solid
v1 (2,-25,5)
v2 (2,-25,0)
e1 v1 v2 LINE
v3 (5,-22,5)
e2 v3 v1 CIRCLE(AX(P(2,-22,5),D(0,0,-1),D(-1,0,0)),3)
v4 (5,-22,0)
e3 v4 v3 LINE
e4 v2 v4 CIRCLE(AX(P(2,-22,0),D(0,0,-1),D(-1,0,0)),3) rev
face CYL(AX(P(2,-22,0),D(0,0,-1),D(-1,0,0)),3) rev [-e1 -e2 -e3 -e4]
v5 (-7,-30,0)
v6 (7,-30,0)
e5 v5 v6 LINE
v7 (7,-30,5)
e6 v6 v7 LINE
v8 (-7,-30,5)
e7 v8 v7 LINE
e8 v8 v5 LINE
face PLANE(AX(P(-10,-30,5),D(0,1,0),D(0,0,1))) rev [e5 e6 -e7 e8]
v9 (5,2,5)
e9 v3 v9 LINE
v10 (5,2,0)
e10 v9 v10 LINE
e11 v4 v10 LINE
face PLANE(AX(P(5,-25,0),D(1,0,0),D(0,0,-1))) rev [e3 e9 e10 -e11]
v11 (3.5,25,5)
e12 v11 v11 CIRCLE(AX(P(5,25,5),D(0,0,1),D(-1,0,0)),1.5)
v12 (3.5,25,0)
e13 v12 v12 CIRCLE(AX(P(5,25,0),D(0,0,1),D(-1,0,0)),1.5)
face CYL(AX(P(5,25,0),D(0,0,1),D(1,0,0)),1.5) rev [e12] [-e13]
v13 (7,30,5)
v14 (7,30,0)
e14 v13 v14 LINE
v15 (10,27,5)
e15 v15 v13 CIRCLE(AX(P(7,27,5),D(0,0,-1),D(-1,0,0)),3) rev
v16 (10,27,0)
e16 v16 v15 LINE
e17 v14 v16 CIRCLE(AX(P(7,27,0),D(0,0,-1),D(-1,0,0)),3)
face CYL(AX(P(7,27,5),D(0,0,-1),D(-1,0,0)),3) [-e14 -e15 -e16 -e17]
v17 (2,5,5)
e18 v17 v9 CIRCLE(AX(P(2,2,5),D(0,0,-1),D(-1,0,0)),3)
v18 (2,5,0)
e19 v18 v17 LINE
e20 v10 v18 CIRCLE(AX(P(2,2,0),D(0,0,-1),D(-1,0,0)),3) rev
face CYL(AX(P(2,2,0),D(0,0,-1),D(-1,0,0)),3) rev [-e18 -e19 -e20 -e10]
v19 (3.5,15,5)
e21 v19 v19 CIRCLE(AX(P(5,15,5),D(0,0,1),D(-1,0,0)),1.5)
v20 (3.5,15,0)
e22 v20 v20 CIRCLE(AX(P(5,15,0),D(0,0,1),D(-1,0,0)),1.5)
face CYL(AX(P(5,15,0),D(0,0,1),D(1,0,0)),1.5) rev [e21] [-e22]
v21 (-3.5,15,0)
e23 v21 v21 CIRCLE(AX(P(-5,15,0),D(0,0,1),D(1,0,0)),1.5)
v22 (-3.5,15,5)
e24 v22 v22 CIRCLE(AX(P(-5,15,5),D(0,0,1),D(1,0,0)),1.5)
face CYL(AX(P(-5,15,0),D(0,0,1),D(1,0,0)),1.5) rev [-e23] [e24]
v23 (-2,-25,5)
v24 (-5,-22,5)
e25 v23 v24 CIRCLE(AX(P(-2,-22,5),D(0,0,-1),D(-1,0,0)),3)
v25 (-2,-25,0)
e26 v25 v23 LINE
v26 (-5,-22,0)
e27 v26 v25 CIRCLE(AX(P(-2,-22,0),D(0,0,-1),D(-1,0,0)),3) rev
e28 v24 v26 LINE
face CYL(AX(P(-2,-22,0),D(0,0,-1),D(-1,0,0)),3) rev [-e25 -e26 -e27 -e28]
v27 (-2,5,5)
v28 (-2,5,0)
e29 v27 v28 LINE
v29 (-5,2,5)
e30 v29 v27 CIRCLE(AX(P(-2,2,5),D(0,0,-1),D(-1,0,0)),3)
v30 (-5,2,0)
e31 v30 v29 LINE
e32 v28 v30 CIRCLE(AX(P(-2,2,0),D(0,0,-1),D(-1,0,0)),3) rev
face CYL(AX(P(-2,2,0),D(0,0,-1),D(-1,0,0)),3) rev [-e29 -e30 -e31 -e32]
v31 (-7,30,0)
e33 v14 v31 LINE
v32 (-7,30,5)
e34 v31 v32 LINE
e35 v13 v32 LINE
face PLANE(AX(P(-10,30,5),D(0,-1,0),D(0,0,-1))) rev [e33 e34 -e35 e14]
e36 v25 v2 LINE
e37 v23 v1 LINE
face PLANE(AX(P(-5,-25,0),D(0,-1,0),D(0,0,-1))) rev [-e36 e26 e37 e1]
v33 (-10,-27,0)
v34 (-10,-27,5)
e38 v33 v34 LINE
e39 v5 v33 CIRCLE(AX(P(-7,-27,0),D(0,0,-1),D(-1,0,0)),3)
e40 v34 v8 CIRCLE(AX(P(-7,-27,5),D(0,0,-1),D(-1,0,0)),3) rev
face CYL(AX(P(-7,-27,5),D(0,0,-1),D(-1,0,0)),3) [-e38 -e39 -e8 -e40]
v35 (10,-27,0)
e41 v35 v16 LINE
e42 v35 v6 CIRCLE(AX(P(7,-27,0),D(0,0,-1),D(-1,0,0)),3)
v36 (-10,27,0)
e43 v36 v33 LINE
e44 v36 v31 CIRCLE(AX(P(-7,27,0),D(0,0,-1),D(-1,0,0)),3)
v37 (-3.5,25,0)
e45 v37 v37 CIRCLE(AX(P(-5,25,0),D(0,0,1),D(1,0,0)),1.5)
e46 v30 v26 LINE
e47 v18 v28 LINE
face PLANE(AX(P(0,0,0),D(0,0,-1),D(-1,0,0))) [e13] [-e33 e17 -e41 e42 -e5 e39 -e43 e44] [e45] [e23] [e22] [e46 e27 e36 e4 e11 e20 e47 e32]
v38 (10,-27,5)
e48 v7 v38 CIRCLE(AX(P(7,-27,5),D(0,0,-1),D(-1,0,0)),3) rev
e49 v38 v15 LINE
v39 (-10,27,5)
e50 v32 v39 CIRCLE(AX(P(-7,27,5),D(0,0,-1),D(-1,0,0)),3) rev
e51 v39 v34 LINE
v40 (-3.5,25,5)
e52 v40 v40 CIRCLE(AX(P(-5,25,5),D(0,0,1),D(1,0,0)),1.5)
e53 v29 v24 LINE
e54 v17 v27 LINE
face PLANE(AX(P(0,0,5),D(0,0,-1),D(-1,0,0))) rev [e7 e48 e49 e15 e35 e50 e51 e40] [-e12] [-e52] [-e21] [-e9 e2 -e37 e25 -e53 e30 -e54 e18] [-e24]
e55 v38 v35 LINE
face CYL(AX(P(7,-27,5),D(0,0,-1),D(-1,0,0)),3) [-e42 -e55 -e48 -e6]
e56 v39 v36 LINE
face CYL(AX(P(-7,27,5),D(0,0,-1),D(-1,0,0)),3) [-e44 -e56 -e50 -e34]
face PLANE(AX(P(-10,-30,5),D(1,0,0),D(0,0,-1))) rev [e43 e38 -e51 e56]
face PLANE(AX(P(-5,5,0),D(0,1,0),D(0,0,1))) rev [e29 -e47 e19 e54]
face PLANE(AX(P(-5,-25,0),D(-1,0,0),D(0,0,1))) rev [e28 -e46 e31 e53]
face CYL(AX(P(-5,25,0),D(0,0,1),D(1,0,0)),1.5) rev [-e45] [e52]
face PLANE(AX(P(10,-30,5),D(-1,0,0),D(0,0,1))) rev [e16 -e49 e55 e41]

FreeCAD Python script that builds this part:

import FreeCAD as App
import Part
import Sketcher
from FreeCAD import Vector


def edges_at(feature, points):
    """Names of the edges that pass closest to the given points."""
    edges = feature.Shape.Edges
    near = lambda p: min(range(len(edges)), key=lambda i: edges[i].distToShape(Part.Vertex(*p))[0])
    return sorted({f"Edge{near(p) + 1}" for p in points})


def add_polygon(sketch, points):
    """Adds a closed chain of lines whose ends are joined by coincident constraints."""
    first, n = sketch.GeometryCount, len(points)
    for a, b in zip(points, points[1:] + points[:1]):
        sketch.addGeometry(Part.LineSegment(App.Vector(*a, 0), App.Vector(*b, 0)), False)
    for i in range(n):
        sketch.addConstraint(Sketcher.Constraint("Coincident", first + i, 2, first + (i + 1) % n, 1))

doc = App.newDocument("Part")
body = doc.addObject("PartDesign::Body", "Body")

# Sketch on XY plane
sketch1 = body.newObject("Sketcher::SketchObject", "Sketch")
sketch1.AttachmentSupport = (doc.getObject("XY_Plane"), [""])
sketch1.MapMode = "FlatFace"
add_polygon(sketch1, [(-10, 30), (-10, -30), (10, -30), (10, 30)])  # lines 0-3
sketch1.addConstraint([
    Sketcher.Constraint("Vertical", 0),
    Sketcher.Constraint("Horizontal", 1),
    Sketcher.Constraint("Vertical", 2),
    Sketcher.Constraint("Horizontal", 3),
    Sketcher.Constraint("Symmetric", 0, 2, 2, 2, -1, 1),
    Sketcher.Constraint("DistanceX", 1, 1, 1, 2, 20.0),
    Sketcher.Constraint("DistanceY", 0, 2, 0, 1, 60.0),
])
pad1 = body.newObject("PartDesign::Pad", "Pad")
pad1.Profile = sketch1
pad1.Length = 5

# Sketch on XY plane
sketch2 = body.newObject("Sketcher::SketchObject", "Sketch001")
sketch2.AttachmentSupport = (doc.getObject("XY_Plane"), [""])
sketch2.MapMode = "FlatFace"
sketch2.AttachmentOffset = App.Placement(Vector(0, 0, 5), App.Rotation())
sketch2.addGeometry([
    Part.Circle(Vector(-5, 25, 0), Vector(0, 0, 1), 1.5),
    Part.Circle(Vector(-5, 15, 0), Vector(0, 0, 1), 1.5),
    Part.Circle(Vector(5, 15, 0), Vector(0, 0, 1), 1.5),
    Part.Circle(Vector(5, 25, 0), Vector(0, 0, 1), 1.5),
], False)
sketch2.addConstraint([
    Sketcher.Constraint("Equal", 0, 1),
    Sketcher.Constraint("Equal", 1, 2),
    Sketcher.Constraint("Equal", 2, 3),
    Sketcher.Constraint("Symmetric", 1, 3, 2, 3, -2),
    Sketcher.Constraint("Symmetric", 0, 3, 3, 3, -2),
    Sketcher.Constraint("Vertical", 0, 3, 1, 3),
    Sketcher.Constraint("Diameter", 0, 3.0),
    Sketcher.Constraint("DistanceX", 0, 3, -1, 1, 5.0),
    Sketcher.Constraint("DistanceY", -1, 1, 0, 3, 25.0),
    Sketcher.Constraint("DistanceY", -1, 1, 1, 3, 15.0),
])
pocket1 = body.newObject("PartDesign::Pocket", "Pocket")
pocket1.Profile = sketch2
pocket1.Type = "ThroughAll"

# Sketch on XY plane
sketch3 = body.newObject("Sketcher::SketchObject", "Sketch002")
sketch3.AttachmentSupport = (doc.getObject("XY_Plane"), [""])
sketch3.MapMode = "FlatFace"
sketch3.AttachmentOffset = App.Placement(Vector(0, 0, 5), App.Rotation())
add_polygon(sketch3, [(-5, 5), (-5, -25), (5, -25), (5, 5)])  # lines 0-3
sketch3.addConstraint([
    Sketcher.Constraint("Vertical", 0),
    Sketcher.Constraint("Horizontal", 1),
    Sketcher.Constraint("Vertical", 2),
    Sketcher.Constraint("Horizontal", 3),
    Sketcher.Constraint("DistanceX", 1, 1, 1, 2, 10.0),
    Sketcher.Constraint("DistanceY", 0, 2, 0, 1, 30.0),
    Sketcher.Constraint("DistanceX", 0, 2, -1, 1, 5.0),
    Sketcher.Constraint("DistanceY", 0, 2, -1, 1, 25.0),
])
pocket2 = body.newObject("PartDesign::Pocket", "Pocket001")
pocket2.Profile = sketch3
pocket2.Type = "ThroughAll"
doc.recompute()

fillet = body.newObject("PartDesign::Fillet", "Fillet")
fillet.Base = (pocket2, edges_at(pocket2, [
    (5, 5, 2.5),
    (5, -25, 2.5),
    (-5, -25, 2.5),
    (-5, 5, 2.5),
    (10, -30, 2.5),
    (-10, -30, 2.5),
    (-10, 30, 2.5),
    (10, 30, 2.5),
]))
fillet.Radius = 3

doc.recompute()
